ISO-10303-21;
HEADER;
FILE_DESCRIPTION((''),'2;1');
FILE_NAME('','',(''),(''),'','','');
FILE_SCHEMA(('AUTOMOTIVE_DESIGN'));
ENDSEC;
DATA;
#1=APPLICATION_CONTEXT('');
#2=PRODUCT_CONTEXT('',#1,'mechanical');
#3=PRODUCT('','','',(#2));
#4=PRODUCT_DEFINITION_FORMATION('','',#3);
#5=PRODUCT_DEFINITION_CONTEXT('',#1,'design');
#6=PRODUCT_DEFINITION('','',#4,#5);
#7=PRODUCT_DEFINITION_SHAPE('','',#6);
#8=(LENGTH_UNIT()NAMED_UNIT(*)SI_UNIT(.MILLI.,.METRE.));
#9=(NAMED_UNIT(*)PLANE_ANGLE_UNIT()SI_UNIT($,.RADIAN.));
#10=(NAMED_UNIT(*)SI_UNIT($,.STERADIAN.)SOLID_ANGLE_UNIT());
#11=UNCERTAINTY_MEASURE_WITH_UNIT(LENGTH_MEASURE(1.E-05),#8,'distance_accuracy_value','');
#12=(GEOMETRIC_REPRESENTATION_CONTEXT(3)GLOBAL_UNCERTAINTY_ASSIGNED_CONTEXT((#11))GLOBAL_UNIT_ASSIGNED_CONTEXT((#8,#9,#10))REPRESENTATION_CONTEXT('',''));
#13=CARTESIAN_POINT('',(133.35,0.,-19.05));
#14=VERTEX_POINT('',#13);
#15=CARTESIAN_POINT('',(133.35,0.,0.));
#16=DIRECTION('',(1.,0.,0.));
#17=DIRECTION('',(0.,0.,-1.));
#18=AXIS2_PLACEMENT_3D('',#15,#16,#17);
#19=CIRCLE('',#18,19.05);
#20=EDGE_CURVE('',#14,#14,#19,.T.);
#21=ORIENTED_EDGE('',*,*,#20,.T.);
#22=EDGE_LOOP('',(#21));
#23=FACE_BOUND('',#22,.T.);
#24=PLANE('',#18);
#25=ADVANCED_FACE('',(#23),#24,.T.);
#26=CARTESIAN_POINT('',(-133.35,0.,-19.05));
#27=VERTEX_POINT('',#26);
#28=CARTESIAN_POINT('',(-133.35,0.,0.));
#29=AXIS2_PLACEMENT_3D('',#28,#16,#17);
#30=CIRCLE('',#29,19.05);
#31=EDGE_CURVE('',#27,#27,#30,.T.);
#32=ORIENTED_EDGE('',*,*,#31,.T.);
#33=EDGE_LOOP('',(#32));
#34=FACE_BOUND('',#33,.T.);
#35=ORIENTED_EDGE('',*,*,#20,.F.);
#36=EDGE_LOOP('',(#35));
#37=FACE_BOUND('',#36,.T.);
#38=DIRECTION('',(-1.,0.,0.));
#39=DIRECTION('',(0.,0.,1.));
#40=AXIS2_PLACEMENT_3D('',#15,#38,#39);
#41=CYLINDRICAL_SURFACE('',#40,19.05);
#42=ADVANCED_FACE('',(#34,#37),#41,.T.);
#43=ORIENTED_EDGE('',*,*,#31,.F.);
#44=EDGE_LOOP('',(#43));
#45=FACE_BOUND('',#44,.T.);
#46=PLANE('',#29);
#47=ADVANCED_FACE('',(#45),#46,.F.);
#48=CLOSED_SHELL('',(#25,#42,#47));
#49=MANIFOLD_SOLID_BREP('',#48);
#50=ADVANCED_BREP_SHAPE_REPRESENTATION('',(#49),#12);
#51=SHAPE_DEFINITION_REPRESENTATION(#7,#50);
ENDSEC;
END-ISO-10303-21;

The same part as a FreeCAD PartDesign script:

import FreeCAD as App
import Part
import Sketcher

V = App.Vector
Q = App.Units.Quantity

doc = App.newDocument("Part")
body = doc.addObject("PartDesign::Body", "Body")

# Sketch on YZ plane
sketch1 = body.newObject("Sketcher::SketchObject", "Sketch")
sketch1.AttachmentSupport = (doc.getObject("YZ_Plane"), [""])
sketch1.MapMode = "FlatFace"
sketch1.addGeometry(Part.Circle(V(0, 0, 0), V(0, 0, 1), 19), False)
sketch1.addConstraint([
    Sketcher.Constraint("Coincident", 0, 3, -1, 1),
    Sketcher.Constraint("Diameter", 0, Q("1.5 in")),
])
pad1 = body.newObject("PartDesign::Pad", "Pad")
pad1.Profile = sketch1
pad1.Length = Q("10.5 in")
pad1.Midplane = True

doc.recompute()
